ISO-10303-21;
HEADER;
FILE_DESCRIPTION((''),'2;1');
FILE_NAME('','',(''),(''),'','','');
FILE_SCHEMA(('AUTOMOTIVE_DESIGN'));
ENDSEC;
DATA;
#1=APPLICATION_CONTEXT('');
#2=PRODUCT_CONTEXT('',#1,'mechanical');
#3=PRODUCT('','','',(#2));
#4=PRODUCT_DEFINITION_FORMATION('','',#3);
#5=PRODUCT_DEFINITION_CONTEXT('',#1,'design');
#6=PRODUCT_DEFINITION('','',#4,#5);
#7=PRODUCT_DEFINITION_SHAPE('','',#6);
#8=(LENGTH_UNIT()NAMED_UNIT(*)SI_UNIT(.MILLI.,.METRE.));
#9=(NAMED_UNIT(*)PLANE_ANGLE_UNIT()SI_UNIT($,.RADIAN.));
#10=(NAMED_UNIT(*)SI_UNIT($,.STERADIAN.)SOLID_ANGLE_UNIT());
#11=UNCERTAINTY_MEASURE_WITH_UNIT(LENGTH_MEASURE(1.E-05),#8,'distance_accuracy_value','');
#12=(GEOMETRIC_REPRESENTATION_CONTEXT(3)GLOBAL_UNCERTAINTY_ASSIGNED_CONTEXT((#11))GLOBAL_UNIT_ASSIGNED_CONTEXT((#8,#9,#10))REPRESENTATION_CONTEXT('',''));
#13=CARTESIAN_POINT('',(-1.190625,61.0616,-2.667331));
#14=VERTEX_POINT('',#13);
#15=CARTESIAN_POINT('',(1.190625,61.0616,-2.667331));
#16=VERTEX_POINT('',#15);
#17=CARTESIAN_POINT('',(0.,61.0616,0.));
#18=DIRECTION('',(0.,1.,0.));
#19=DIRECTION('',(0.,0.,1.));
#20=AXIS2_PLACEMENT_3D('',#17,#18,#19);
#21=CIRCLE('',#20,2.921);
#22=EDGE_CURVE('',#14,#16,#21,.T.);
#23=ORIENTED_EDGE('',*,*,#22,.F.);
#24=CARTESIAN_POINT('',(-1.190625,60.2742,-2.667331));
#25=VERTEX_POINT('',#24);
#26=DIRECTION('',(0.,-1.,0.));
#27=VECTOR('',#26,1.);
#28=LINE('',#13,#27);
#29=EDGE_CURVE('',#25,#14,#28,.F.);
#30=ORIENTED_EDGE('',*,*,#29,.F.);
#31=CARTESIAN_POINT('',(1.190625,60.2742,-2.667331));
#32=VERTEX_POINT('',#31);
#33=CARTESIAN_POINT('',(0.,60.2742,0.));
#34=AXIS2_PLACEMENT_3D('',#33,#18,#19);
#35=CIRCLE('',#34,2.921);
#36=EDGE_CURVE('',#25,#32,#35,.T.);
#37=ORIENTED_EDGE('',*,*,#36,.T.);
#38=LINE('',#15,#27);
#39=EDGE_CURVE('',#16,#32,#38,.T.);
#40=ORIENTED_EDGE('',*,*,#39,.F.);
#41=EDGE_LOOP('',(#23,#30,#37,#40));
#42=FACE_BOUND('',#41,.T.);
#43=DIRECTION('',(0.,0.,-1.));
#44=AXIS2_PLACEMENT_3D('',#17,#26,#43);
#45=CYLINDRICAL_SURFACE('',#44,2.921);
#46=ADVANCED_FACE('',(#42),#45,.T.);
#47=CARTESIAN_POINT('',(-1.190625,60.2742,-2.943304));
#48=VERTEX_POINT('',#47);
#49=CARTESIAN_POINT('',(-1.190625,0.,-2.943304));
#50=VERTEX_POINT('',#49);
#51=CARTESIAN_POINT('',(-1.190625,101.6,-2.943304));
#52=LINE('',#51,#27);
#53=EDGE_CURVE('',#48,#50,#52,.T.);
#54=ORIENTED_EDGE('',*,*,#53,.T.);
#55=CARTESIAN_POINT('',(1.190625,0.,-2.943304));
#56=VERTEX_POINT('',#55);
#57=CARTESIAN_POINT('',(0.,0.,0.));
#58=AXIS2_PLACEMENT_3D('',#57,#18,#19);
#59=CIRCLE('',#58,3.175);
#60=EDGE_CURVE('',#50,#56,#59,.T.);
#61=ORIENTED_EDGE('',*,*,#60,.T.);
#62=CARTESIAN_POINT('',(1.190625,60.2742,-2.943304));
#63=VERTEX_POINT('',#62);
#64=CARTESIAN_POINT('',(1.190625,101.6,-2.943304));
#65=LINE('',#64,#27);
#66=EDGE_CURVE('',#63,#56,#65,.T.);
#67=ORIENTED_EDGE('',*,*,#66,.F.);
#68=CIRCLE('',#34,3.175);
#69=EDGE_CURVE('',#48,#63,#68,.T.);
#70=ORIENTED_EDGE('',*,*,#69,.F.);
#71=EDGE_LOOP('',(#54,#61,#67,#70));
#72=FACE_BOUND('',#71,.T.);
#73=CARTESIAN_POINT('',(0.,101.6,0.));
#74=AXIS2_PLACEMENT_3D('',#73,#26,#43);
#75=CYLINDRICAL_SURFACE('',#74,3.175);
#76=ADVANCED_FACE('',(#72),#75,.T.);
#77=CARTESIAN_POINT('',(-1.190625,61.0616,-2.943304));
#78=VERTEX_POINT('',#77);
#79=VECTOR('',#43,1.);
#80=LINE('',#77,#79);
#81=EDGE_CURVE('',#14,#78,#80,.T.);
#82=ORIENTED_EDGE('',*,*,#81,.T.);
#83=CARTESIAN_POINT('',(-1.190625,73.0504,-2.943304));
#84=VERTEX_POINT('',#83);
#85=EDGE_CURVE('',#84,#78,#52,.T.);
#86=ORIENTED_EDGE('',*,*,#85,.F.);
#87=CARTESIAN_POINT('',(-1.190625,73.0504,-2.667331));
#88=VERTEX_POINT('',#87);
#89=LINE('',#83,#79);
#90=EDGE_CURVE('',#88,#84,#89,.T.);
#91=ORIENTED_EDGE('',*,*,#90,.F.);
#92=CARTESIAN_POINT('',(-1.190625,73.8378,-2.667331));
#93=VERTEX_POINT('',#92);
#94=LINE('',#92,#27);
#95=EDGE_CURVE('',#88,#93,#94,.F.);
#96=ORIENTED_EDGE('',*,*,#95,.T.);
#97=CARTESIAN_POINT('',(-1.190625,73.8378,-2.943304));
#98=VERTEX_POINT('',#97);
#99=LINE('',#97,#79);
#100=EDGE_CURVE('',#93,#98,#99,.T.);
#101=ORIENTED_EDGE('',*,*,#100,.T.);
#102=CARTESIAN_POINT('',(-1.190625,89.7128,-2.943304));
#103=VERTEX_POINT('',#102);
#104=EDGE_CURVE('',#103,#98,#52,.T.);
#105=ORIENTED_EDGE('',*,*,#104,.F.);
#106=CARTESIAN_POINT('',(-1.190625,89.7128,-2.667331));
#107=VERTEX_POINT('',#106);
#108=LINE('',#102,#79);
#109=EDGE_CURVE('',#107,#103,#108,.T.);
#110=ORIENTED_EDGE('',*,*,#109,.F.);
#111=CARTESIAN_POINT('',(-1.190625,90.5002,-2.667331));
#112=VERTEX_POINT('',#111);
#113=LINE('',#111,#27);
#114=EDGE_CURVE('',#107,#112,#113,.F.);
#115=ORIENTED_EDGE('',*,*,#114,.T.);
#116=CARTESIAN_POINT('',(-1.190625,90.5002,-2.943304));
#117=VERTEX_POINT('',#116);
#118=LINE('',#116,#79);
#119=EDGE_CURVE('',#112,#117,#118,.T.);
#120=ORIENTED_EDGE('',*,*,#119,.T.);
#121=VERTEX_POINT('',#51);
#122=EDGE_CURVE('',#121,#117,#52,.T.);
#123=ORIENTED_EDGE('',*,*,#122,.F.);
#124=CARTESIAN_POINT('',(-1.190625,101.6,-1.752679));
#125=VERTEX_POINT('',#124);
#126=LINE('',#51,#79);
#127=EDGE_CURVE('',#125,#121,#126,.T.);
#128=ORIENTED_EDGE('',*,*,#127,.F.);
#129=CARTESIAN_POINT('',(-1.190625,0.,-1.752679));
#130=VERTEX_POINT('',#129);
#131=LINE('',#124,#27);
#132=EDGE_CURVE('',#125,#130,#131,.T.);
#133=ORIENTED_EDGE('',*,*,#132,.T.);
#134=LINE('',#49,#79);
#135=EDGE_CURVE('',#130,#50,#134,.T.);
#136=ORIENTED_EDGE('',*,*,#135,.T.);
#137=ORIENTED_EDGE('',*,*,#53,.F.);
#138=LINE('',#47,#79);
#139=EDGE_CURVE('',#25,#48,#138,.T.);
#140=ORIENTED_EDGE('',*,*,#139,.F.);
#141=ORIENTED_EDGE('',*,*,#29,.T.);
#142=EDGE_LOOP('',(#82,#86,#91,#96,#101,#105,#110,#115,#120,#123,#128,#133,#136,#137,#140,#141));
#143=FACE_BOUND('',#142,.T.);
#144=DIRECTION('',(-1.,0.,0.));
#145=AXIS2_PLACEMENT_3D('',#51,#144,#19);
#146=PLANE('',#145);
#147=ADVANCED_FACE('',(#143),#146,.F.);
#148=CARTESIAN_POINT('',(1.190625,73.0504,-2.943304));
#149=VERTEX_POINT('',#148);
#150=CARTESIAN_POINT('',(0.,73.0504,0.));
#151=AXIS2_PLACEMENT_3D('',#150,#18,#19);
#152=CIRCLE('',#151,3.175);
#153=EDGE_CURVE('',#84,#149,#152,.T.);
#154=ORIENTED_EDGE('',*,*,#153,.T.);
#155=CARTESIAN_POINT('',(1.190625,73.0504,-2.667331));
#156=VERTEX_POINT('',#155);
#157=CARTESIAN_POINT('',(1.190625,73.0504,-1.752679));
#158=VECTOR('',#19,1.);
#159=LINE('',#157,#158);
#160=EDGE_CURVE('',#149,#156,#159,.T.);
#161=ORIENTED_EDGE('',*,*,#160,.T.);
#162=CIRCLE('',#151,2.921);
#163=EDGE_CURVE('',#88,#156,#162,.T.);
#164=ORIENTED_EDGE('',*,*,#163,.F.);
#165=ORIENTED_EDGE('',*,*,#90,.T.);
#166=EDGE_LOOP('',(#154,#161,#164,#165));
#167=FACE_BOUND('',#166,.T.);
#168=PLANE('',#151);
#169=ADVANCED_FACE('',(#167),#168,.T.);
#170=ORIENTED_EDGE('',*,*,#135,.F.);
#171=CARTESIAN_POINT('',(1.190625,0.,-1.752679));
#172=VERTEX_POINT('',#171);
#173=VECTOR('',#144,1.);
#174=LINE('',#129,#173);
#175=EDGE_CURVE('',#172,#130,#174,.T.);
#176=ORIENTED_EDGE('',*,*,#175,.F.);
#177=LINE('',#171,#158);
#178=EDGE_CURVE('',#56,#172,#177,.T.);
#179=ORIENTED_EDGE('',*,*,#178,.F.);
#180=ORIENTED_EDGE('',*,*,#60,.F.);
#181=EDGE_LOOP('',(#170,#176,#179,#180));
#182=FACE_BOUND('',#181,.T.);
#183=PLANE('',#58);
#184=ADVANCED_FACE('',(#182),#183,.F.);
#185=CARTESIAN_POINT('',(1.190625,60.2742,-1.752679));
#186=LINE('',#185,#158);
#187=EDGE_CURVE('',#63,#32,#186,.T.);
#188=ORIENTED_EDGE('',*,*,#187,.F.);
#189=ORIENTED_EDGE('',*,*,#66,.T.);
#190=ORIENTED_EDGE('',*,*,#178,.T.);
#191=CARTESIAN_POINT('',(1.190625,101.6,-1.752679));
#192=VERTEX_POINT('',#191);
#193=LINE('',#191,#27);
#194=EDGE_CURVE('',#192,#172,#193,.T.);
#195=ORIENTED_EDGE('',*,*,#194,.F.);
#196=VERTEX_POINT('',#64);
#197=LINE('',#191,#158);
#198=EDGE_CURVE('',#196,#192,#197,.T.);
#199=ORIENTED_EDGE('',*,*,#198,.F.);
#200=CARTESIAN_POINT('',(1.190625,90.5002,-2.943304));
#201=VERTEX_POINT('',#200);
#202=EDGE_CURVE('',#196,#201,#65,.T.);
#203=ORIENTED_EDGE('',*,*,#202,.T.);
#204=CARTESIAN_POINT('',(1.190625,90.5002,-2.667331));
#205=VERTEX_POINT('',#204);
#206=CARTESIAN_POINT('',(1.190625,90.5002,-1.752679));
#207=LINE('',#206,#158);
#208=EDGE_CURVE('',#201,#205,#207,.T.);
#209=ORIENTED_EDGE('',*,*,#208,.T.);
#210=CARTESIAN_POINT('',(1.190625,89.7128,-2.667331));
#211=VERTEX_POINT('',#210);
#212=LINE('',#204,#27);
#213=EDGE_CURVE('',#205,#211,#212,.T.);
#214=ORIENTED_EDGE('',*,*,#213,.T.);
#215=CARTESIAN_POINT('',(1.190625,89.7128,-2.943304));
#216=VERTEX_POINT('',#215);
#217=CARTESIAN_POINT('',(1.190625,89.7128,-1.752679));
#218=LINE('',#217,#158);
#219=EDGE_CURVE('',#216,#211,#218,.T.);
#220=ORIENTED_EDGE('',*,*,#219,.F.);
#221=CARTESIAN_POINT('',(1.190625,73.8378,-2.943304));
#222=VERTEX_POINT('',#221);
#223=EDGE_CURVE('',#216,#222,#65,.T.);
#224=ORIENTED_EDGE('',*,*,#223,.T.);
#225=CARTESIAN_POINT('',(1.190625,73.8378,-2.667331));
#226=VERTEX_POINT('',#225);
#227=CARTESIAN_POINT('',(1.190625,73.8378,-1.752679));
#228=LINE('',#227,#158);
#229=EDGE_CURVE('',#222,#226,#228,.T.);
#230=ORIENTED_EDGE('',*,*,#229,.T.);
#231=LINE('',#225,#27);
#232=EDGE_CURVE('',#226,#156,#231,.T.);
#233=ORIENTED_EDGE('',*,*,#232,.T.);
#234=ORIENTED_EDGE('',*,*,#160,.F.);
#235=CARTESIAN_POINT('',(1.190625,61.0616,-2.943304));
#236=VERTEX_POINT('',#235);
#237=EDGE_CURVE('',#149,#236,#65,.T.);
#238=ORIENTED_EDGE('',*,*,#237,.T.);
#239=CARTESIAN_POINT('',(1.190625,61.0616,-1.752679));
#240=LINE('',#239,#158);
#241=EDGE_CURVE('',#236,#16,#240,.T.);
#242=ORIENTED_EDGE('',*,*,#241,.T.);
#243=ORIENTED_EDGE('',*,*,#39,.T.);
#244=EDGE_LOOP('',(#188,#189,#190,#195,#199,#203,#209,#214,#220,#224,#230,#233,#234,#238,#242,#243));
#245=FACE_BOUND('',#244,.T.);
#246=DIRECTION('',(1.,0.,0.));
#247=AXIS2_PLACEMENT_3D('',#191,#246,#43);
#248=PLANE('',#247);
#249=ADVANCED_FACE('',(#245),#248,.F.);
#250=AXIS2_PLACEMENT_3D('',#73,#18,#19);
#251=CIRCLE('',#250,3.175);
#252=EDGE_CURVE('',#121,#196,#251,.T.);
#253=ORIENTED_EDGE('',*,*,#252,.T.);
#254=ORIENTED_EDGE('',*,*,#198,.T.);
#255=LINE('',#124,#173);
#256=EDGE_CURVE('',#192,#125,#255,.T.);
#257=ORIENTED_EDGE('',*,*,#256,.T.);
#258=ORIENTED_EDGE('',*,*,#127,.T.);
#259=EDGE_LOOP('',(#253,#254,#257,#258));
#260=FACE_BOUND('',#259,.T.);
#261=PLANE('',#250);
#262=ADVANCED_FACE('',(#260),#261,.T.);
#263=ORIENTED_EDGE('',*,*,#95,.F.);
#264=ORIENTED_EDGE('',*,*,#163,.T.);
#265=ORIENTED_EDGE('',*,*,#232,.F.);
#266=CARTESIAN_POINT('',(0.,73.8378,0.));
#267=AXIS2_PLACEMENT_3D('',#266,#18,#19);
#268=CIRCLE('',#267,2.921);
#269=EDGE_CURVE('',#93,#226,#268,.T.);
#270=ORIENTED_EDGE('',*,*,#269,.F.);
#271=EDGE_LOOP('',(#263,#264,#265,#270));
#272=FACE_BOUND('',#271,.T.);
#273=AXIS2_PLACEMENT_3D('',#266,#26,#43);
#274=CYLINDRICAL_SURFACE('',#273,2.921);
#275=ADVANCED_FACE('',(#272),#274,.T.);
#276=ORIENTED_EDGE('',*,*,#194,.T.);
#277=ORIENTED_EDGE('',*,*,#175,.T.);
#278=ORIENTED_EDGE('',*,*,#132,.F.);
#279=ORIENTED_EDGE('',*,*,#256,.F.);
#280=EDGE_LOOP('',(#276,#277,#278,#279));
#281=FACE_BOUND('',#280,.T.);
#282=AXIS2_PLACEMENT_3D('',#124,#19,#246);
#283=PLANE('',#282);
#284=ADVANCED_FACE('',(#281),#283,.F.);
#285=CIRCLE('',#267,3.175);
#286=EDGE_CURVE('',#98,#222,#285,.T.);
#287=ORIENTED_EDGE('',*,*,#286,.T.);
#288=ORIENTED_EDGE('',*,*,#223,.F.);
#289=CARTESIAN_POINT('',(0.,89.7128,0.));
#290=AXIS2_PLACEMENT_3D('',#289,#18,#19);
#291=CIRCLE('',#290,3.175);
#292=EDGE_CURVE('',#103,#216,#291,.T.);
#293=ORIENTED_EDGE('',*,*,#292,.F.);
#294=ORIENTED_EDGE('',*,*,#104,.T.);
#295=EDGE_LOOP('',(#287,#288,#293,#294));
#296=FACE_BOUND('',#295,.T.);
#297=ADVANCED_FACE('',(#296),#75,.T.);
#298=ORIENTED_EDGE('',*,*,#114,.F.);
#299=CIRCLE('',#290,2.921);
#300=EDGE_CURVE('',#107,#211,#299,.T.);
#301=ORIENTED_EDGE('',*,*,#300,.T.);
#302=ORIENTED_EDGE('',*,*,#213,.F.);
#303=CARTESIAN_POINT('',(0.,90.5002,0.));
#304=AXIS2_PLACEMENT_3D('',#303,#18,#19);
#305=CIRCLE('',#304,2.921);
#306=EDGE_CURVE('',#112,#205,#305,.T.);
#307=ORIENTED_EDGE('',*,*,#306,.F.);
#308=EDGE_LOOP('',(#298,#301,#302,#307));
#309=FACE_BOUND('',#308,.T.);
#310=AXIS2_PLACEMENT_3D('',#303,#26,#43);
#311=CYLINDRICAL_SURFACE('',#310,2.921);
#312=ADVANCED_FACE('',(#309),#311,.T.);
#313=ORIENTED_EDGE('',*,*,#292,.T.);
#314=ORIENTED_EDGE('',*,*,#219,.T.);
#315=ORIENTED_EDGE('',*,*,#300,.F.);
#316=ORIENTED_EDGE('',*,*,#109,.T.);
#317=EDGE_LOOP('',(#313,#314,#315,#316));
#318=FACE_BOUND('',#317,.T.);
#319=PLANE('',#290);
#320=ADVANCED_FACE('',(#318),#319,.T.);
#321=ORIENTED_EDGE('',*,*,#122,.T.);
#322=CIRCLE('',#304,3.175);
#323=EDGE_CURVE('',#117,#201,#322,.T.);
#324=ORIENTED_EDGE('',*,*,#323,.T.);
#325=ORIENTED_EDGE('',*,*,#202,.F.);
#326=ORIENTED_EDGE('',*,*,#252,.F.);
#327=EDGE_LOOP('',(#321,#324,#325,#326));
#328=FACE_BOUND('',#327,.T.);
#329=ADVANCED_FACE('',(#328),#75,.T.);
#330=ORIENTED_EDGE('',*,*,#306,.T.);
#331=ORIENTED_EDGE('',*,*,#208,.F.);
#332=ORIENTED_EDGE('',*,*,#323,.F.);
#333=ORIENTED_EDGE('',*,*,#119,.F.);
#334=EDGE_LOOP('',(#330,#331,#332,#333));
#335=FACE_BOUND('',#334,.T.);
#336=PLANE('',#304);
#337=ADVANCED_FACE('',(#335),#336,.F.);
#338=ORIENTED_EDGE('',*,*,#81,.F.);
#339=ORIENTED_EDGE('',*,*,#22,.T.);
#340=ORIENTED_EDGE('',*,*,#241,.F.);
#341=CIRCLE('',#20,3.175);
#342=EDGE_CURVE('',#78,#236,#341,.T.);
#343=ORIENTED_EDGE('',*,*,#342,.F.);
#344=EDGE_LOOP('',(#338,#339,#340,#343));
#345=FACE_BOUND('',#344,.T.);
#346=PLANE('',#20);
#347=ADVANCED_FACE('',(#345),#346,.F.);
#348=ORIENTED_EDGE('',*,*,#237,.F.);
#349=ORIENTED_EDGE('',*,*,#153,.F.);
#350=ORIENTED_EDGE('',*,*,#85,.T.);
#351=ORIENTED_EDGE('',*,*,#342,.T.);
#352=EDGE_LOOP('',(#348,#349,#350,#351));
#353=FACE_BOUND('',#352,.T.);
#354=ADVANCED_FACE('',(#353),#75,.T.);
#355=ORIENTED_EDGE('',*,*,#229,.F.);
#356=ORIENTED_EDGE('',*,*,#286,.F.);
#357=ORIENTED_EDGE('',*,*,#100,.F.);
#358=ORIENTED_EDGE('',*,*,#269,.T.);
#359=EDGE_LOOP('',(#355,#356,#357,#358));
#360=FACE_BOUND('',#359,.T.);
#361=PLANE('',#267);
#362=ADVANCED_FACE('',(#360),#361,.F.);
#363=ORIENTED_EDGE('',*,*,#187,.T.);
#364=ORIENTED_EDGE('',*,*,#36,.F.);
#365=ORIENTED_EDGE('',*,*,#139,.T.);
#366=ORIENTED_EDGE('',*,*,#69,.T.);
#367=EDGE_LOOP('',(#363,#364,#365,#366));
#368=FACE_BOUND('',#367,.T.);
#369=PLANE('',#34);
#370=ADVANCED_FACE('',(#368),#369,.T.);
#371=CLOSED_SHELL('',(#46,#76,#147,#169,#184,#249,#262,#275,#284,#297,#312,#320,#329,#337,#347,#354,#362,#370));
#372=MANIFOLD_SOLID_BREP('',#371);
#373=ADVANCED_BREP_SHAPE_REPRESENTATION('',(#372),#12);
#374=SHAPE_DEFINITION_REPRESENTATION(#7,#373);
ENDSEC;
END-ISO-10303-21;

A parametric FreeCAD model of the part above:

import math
import FreeCAD as App
import Part
import Sketcher
from FreeCAD import Vector
Q = App.Units.Quantity

doc = App.newDocument("Part")
params = doc.addObject("Spreadsheet::Sheet", "Params")
for row, (alias, value) in enumerate([
    ("sketch1_radius", "0.125 in"),
    ("sketch1_width", "0.09375 in"),
    ("sketch1_height", "0.046875 in"),
    ("pad1_length", "4 in"),
    ("sketch2_diameter", "0.25 in"),
    ("sketch2_diameter2", "0.23 in"),
    ("pocket1_length", "0.031 in"),
    ("sketch3_diameter", "0.25 in"),
    ("sketch3_diameter2", "0.23 in"),
    ("pocket2_length", "0.031 in"),
    ("sketch4_diameter", "0.25 in"),
    ("sketch4_diameter2", "0.23 in"),
    ("pocket3_length", "0.031 in"),
], start=1):
    params.set(f"A{row}", alias)
    params.set(f"B{row}", "=" + value)
    params.setAlias(f"B{row}", alias)

body = doc.addObject("PartDesign::Body", "Body")

# Sketch on XZ plane
sketch1 = body.newObject("Sketcher::SketchObject", "Sketch")
sketch1.AttachmentSupport = (doc.getObject("XZ_Plane"), [""])
sketch1.MapMode = "FlatFace"
sketch1.addGeometry([
    Part.LineSegment(Vector(-1.190625, -1.752679, 0), Vector(-1.190625, -2.943304, 0)),
    Part.ArcOfCircle(Part.Circle(Vector(0, 0, 0), Vector(0, 0, 1), 3.175), math.radians(-67.975687), math.radians(247.975687)),
    Part.LineSegment(Vector(1.190625, -2.943304, 0), Vector(1.190625, -1.752679, 0)),
    Part.LineSegment(Vector(1.190625, -1.752679, 0), Vector(-1.190625, -1.752679, 0)),
], False)
sketch1.addConstraint([
    Sketcher.Constraint("Coincident", 0, 2, 1, 2),
    Sketcher.Constraint("Coincident", 1, 1, 2, 1),
    Sketcher.Constraint("Coincident", 2, 2, 3, 1),
    Sketcher.Constraint("Coincident", 3, 2, 0, 1),
    Sketcher.Constraint("Vertical", 0),
    Sketcher.Constraint("Vertical", 2),
    Sketcher.Constraint("Horizontal", 3),
    Sketcher.Constraint("Coincident", 1, 3, -1, 1),
    Sketcher.Constraint("Horizontal", 0, 2, 1, 1),
    Sketcher.Constraint("Radius", 1, Q("0.125 in")),
    Sketcher.Constraint("DistanceX", 3, 2, 3, 1, Q("0.09375 in")),
    Sketcher.Constraint("DistanceY", 0, 2, 0, 1, Q("0.046875 in")),
])
sketch1.setExpression("Constraints[9]", "Params.sketch1_radius")
sketch1.setExpression("Constraints[10]", "Params.sketch1_width")
sketch1.setExpression("Constraints[11]", "Params.sketch1_height")
pad1 = body.newObject("PartDesign::Pad", "Pad")
pad1.Profile = sketch1
pad1.setExpression("Length", "Params.pad1_length")
pad1.Reversed = True

# Sketch on XZ plane
sketch2 = body.newObject("Sketcher::SketchObject", "Sketch001")
sketch2.AttachmentSupport = (doc.getObject("XZ_Plane"), [""])
sketch2.MapMode = "FlatFace"
sketch2.AttachmentOffset = App.Placement(Vector(0, 0, -2.373 * 25.4), App.Rotation())
sketch2.addGeometry([
    Part.Circle(Vector(0, 0, 0), Vector(0, 0, 1), 3.175),
    Part.Circle(Vector(0, 0, 0), Vector(0, 0, 1), 2.921),
], False)
sketch2.addConstraint([
    Sketcher.Constraint("Coincident", 0, 3, -1, 1),
    Sketcher.Constraint("Coincident", 1, 3, -1, 1),
    Sketcher.Constraint("Diameter", 0, Q("0.25 in")),
    Sketcher.Constraint("Diameter", 1, Q("0.23 in")),
])
sketch2.setExpression("Constraints[2]", "Params.sketch2_diameter")
sketch2.setExpression("Constraints[3]", "Params.sketch2_diameter2")
pocket1 = body.newObject("PartDesign::Pocket", "Pocket")
pocket1.Profile = sketch2
pocket1.setExpression("Length", "Params.pocket1_length")

# Sketch on XZ plane
sketch3 = body.newObject("Sketcher::SketchObject", "Sketch002")
sketch3.AttachmentSupport = (doc.getObject("XZ_Plane"), [""])
sketch3.MapMode = "FlatFace"
sketch3.AttachmentOffset = App.Placement(Vector(0, 0, -2.876 * 25.4), App.Rotation())
sketch3.addGeometry([
    Part.Circle(Vector(0, 0, 0), Vector(0, 0, 1), 3.175),
    Part.Circle(Vector(0, 0, 0), Vector(0, 0, 1), 2.921),
], False)
sketch3.addConstraint([
    Sketcher.Constraint("Coincident", 0, 3, -1, 1),
    Sketcher.Constraint("Coincident", 1, 3, -1, 1),
    Sketcher.Constraint("Diameter", 0, Q("0.25 in")),
    Sketcher.Constraint("Diameter", 1, Q("0.23 in")),
])
sketch3.setExpression("Constraints[2]", "Params.sketch3_diameter")
sketch3.setExpression("Constraints[3]", "Params.sketch3_diameter2")
pocket2 = body.newObject("PartDesign::Pocket", "Pocket001")
pocket2.Profile = sketch3
pocket2.setExpression("Length", "Params.pocket2_length")

# Sketch on XZ plane
sketch4 = body.newObject("Sketcher::SketchObject", "Sketch003")
sketch4.AttachmentSupport = (doc.getObject("XZ_Plane"), [""])
sketch4.MapMode = "FlatFace"
sketch4.AttachmentOffset = App.Placement(Vector(0, 0, -3.532 * 25.4), App.Rotation())
sketch4.addGeometry([
    Part.Circle(Vector(0, 0, 0), Vector(0, 0, 1), 3.175),
    Part.Circle(Vector(0, 0, 0), Vector(0, 0, 1), 2.921),
], False)
sketch4.addConstraint([
    Sketcher.Constraint("Coincident", 0, 3, -1, 1),
    Sketcher.Constraint("Coincident", 1, 3, -1, 1),
    Sketcher.Constraint("Diameter", 0, Q("0.25 in")),
    Sketcher.Constraint("Diameter", 1, Q("0.23 in")),
])
sketch4.setExpression("Constraints[2]", "Params.sketch4_diameter")
sketch4.setExpression("Constraints[3]", "Params.sketch4_diameter2")
pocket3 = body.newObject("PartDesign::Pocket", "Pocket002")
pocket3.Profile = sketch4
pocket3.setExpression("Length", "Params.pocket3_length")

doc.recompute()
